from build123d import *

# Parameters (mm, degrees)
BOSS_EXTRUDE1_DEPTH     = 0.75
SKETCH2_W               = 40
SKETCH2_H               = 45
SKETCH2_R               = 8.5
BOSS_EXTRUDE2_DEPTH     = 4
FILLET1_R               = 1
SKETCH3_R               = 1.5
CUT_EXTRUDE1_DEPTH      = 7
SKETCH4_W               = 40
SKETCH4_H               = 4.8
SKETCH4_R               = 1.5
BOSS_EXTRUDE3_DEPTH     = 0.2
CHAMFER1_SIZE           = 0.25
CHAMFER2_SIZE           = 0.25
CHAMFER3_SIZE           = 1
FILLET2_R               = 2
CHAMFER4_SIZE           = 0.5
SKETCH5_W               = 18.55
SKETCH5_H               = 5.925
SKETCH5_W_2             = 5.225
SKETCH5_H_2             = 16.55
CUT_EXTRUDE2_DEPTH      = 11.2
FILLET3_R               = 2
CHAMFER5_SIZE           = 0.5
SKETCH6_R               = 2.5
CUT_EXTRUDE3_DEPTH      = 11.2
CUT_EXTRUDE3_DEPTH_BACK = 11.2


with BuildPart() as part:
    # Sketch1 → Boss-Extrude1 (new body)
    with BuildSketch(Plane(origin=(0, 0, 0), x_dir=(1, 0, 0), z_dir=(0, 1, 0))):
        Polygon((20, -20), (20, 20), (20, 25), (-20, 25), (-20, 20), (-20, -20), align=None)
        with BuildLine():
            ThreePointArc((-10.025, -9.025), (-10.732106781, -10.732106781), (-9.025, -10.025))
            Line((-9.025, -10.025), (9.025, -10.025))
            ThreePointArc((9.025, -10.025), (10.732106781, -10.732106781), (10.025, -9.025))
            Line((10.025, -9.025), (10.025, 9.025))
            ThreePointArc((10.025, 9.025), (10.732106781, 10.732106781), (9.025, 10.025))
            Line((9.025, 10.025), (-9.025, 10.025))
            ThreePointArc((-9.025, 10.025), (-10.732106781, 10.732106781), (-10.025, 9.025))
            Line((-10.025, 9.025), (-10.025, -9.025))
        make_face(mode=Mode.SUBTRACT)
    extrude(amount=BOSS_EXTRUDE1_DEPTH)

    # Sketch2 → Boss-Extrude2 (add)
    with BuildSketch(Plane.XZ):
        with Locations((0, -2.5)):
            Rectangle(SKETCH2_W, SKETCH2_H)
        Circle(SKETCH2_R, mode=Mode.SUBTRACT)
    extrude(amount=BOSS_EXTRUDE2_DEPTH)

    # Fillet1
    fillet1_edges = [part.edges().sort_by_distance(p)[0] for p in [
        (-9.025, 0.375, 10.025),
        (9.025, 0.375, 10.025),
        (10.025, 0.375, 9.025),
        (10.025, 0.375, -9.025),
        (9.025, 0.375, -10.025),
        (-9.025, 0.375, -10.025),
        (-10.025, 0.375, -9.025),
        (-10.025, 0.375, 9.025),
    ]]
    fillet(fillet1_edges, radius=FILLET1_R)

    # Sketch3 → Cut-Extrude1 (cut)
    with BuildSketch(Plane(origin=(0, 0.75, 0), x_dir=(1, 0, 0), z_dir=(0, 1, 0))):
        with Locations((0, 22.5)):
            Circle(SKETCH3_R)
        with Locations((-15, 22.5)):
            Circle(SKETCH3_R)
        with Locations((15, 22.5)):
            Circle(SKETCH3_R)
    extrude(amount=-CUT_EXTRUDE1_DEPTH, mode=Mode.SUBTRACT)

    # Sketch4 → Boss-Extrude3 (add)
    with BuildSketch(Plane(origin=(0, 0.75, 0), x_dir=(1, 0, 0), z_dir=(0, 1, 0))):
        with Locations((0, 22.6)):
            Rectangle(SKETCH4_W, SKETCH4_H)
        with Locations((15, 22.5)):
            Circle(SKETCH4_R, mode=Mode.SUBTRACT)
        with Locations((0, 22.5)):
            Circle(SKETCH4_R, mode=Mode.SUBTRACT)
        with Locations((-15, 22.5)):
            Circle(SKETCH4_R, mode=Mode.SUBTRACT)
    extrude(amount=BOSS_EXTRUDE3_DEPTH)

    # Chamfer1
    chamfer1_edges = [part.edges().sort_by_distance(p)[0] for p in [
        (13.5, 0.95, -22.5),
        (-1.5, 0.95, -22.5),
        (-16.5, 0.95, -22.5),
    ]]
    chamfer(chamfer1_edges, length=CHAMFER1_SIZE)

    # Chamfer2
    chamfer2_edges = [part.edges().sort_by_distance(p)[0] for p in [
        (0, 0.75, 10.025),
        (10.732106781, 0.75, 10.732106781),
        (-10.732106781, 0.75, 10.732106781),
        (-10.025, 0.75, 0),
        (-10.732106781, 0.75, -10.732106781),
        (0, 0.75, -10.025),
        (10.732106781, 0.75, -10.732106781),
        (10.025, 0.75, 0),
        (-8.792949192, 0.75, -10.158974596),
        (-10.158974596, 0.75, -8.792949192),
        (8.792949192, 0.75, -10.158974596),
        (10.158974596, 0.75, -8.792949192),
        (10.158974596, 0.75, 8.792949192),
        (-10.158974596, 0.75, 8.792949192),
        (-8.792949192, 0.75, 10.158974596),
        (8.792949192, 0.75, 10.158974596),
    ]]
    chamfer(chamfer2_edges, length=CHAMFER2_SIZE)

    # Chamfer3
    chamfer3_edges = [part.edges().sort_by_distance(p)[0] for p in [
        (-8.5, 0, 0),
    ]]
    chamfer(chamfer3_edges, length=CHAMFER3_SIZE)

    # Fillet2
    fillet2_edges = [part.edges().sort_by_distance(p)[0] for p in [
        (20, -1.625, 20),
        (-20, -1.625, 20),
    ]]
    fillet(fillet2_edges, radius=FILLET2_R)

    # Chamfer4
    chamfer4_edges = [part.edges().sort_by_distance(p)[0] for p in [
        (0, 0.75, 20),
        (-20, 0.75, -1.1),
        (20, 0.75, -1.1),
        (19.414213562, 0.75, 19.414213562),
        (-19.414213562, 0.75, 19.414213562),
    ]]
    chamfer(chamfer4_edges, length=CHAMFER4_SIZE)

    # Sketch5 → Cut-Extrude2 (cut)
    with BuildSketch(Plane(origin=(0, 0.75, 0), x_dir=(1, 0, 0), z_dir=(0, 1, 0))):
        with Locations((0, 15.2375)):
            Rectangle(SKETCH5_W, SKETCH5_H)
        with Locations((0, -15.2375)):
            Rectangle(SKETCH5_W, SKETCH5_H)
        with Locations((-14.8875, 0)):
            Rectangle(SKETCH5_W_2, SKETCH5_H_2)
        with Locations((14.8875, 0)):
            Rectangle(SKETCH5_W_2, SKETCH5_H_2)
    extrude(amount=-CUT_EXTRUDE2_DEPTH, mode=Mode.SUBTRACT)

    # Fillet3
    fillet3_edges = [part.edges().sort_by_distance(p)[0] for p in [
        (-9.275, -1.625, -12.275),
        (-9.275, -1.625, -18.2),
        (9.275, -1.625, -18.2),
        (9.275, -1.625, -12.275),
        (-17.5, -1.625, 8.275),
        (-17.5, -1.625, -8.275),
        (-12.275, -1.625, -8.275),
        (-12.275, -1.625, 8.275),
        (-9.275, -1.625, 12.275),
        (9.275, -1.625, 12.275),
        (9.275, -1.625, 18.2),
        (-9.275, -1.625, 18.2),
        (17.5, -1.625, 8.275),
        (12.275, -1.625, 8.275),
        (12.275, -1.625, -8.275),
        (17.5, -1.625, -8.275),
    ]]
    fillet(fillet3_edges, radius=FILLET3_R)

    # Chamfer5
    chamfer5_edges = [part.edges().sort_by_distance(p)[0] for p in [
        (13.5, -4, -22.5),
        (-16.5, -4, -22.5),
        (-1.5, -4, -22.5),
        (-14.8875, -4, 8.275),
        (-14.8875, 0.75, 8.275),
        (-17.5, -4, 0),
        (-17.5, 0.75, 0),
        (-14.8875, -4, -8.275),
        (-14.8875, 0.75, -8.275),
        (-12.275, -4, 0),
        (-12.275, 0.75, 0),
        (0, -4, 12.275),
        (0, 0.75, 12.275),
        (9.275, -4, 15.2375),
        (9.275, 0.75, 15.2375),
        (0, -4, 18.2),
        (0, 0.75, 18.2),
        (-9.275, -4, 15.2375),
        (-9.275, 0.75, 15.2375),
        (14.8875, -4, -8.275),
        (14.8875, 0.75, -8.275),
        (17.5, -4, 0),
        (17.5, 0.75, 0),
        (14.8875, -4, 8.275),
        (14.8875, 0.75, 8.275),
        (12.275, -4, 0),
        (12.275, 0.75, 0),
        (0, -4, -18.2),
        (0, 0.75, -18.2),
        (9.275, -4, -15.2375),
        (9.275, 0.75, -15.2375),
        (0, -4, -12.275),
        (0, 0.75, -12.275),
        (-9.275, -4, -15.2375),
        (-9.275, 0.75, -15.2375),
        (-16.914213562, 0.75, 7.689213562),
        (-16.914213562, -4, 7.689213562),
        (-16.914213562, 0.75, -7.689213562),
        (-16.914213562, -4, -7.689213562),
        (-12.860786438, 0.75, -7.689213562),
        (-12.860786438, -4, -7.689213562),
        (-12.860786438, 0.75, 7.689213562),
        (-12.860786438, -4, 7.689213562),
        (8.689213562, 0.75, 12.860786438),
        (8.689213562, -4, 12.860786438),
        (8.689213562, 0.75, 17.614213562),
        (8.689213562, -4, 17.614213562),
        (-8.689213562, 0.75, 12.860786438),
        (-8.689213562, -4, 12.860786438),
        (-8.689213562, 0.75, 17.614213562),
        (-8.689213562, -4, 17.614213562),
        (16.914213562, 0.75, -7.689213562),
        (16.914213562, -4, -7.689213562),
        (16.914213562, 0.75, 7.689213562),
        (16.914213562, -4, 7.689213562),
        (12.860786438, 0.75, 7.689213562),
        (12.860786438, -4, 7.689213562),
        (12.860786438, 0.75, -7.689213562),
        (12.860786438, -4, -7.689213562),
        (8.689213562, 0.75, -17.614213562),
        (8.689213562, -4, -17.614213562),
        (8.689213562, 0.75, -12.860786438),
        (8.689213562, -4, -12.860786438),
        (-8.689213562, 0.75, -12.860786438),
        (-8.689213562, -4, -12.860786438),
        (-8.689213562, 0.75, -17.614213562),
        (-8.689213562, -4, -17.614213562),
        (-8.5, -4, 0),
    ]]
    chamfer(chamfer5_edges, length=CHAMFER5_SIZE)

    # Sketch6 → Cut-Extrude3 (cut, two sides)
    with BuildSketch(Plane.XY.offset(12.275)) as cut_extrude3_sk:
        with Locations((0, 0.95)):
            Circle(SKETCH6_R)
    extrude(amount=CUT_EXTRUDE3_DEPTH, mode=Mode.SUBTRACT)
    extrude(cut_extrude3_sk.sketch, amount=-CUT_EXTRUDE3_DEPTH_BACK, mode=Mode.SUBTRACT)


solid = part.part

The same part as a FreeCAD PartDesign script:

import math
import FreeCAD as App
import Part
import Sketcher

V = App.Vector


def edges_at(feature, points):
    """Names of the edges that pass closest to the given points."""
    edges = feature.Shape.Edges
    near = lambda p: min(range(len(edges)), key=lambda i: edges[i].distToShape(Part.Vertex(*p))[0])
    return sorted({f"Edge{near(p) + 1}" for p in points})


def add_polygon(sketch, points):
    """Adds a closed chain of lines whose ends are joined by coincident constraints."""
    first, n = sketch.GeometryCount, len(points)
    for a, b in zip(points, points[1:] + points[:1]):
        sketch.addGeometry(Part.LineSegment(App.Vector(*a, 0), App.Vector(*b, 0)), False)
    for i in range(n):
        sketch.addConstraint(Sketcher.Constraint("Coincident", first + i, 2, first + (i + 1) % n, 1))

doc = App.newDocument("Part")
params = doc.addObject("Spreadsheet::Sheet", "Params")
for row, (alias, value) in enumerate([
    ("sketch1_radius", "1 mm"),
    ("sketch1_width", "40 mm"),
    ("sketch1_height", "45 mm"),
    ("sketch1_width2", "18.05 mm"),
    ("pad1_length", "0.75 mm"),
    ("sketch2_diameter", "17 mm"),
    ("sketch2_width", "40 mm"),
    ("sketch2_height", "45 mm"),
    ("pad2_length", "4 mm"),
    ("fillet_radius", "1 mm"),
    ("sketch3_diameter", "3 mm"),
    ("pocket1_length", "7 mm"),
    ("sketch4_diameter", "3 mm"),
    ("sketch4_width", "40 mm"),
    ("sketch4_height", "4.8 mm"),
    ("pad3_length", "0.2 mm"),
    ("chamfer_size", "0.25 mm"),
    ("chamfer2_size", "0.25 mm"),
    ("chamfer3_size", "1 mm"),
    ("fillet2_radius", "2 mm"),
    ("chamfer4_size", "0.5 mm"),
    ("sketch5_width", "18.55 mm"),
    ("sketch5_height", "16.55 mm"),
    ("pocket2_length", "11.2 mm"),
    ("fillet3_radius", "2 mm"),
    ("chamfer5_size", "0.5 mm"),
    ("sketch6_diameter", "5 mm"),
    ("pocket3_length", "11.2 mm"),
    ("pocket3_length2", "11.2 mm"),
], start=1):
    params.set(f"A{row}", alias)
    params.set(f"B{row}", "=" + value)
    params.setAlias(f"B{row}", alias)

body = doc.addObject("PartDesign::Body", "Body")

# Sketch on XZ plane
sketch1 = body.newObject("Sketcher::SketchObject", "Sketch")
sketch1.AttachmentSupport = (doc.getObject("XZ_Plane"), [""])
sketch1.MapMode = "FlatFace"
add_polygon(sketch1, [(20, 20), (20, -25), (-20, -25), (-20, 20)])  # lines 0-3
sketch1.addGeometry(Part.ArcOfCircle(Part.Circle(V(-10, 10, 0), V(0, 0, 1), 1), math.radians(0), math.radians(270)), False)  # 4
sketch1.addGeometry(Part.LineSegment(V(-10, 9, 0), V(-10, -9, 0)), False)  # 5
sketch1.addGeometry(Part.ArcOfCircle(Part.Circle(V(-10, -10, 0), V(0, 0, 1), 1), math.radians(90), math.radians(360)), False)  # 6
sketch1.addGeometry(Part.LineSegment(V(-9, -10, 0), V(9, -10, 0)), False)  # 7
sketch1.addGeometry(Part.ArcOfCircle(Part.Circle(V(10, -10, 0), V(0, 0, 1), 1), math.radians(180), math.radians(450)), False)  # 8
sketch1.addGeometry(Part.LineSegment(V(10, -9, 0), V(10, 9, 0)), False)  # 9
sketch1.addGeometry(Part.ArcOfCircle(Part.Circle(V(10, 10, 0), V(0, 0, 1), 1), math.radians(-90), math.radians(180)), False)  # 10
sketch1.addGeometry(Part.LineSegment(V(9, 10, 0), V(-9, 10, 0)), False)  # 11
sketch1.addConstraint([
    Sketcher.Constraint("Coincident", 4, 2, 5, 1),
    Sketcher.Constraint("Coincident", 5, 2, 6, 1),
    Sketcher.Constraint("Coincident", 6, 2, 7, 1),
    Sketcher.Constraint("Coincident", 7, 2, 8, 1),
    Sketcher.Constraint("Coincident", 8, 2, 9, 1),
    Sketcher.Constraint("Coincident", 9, 2, 10, 1),
    Sketcher.Constraint("Coincident", 10, 2, 11, 1),
    Sketcher.Constraint("Coincident", 11, 2, 4, 1),
    Sketcher.Constraint("Vertical", 0),
    Sketcher.Constraint("Horizontal", 1),
    Sketcher.Constraint("Vertical", 2),
    Sketcher.Constraint("Horizontal", 3),
    Sketcher.Constraint("Vertical", 5),
    Sketcher.Constraint("Horizontal", 7),
    Sketcher.Constraint("Vertical", 9),
    Sketcher.Constraint("Horizontal", 11),
    Sketcher.Constraint("Equal", 4, 6),
    Sketcher.Constraint("Equal", 6, 8),
    Sketcher.Constraint("Equal", 8, 10),
    Sketcher.Constraint("Symmetric", 4, 3, 8, 3, -1, 1),
    Sketcher.Constraint("Symmetric", 6, 3, 10, 3, -1, 1),
    Sketcher.Constraint("Symmetric", 6, 3, 8, 3, -2),
    Sketcher.Constraint("Horizontal", 8, 3, 6, 2),
    Sketcher.Constraint("Horizontal", 4, 3, 10, 2),
    Sketcher.Constraint("Vertical", 6, 3, 4, 2),
    Sketcher.Constraint("Vertical", 10, 3, 8, 2),
    Sketcher.Constraint("Equal", 11, 5),
    Sketcher.Constraint("Radius", 4, 1.0),
    Sketcher.Constraint("DistanceX", 1, 2, 1, 1, 40.0),
    Sketcher.Constraint("DistanceY", 0, 2, 0, 1, 45.0),
    Sketcher.Constraint("DistanceX", -1, 1, 0, 2, 20.0),
    Sketcher.Constraint("DistanceY", 0, 2, -1, 1, 25.0),
    Sketcher.Constraint("DistanceX", 7, 1, 7, 2, 18.05),
])
sketch1.setExpression("Constraints[31]", "Params.sketch1_radius")
sketch1.setExpression("Constraints[32]", "Params.sketch1_width")
sketch1.setExpression("Constraints[33]", "Params.sketch1_height")
sketch1.setExpression("Constraints[36]", "Params.sketch1_width2")
pad1 = body.newObject("PartDesign::Pad", "Pad")
pad1.Profile = sketch1
pad1.setExpression("Length", "Params.pad1_length")
pad1.Reversed = True

# Sketch on XZ plane
sketch2 = body.newObject("Sketcher::SketchObject", "Sketch001")
sketch2.AttachmentSupport = (doc.getObject("XZ_Plane"), [""])
sketch2.MapMode = "FlatFace"
add_polygon(sketch2, [(-20, 20), (-20, -25), (20, -25), (20, 20)])  # lines 0-3
sketch2.addGeometry(Part.Circle(V(0, 0, 0), V(0, 0, 1), 8), False)  # 4
sketch2.addConstraint([
    Sketcher.Constraint("Vertical", 0),
    Sketcher.Constraint("Horizontal", 1),
    Sketcher.Constraint("Vertical", 2),
    Sketcher.Constraint("Horizontal", 3),
    Sketcher.Constraint("Coincident", 4, 3, -1, 1),
    Sketcher.Constraint("Diameter", 4, 17.0),
    Sketcher.Constraint("DistanceX", 1, 1, 1, 2, 40.0),
    Sketcher.Constraint("DistanceY", 0, 2, 0, 1, 45.0),
    Sketcher.Constraint("DistanceX", 0, 2, -1, 1, 20.0),
    Sketcher.Constraint("DistanceY", 0, 2, -1, 1, 25.0),
])
sketch2.setExpression("Constraints[9]", "Params.sketch2_diameter")
sketch2.setExpression("Constraints[10]", "Params.sketch2_width")
sketch2.setExpression("Constraints[11]", "Params.sketch2_height")
pad2 = body.newObject("PartDesign::Pad", "Pad001")
pad2.Profile = sketch2
pad2.setExpression("Length", "Params.pad2_length")
doc.recompute()

fillet = body.newObject("PartDesign::Fillet", "Fillet")
fillet.Base = (pad2, edges_at(pad2, [
    (-9.025, 0.375, 10.025),
    (9.025, 0.375, 10.025),
    (10.025, 0.375, 9.025),
    (10.025, 0.375, -9.025),
    (9.025, 0.375, -10.025),
    (-9.025, 0.375, -10.025),
    (-10.025, 0.375, -9.025),
    (-10.025, 0.375, 9.025),
]))
fillet.setExpression("Radius", "Params.fillet_radius")

# Sketch on XZ plane
sketch3 = body.newObject("Sketcher::SketchObject", "Sketch002")
sketch3.AttachmentSupport = (doc.getObject("XZ_Plane"), [""])
sketch3.MapMode = "FlatFace"
sketch3.AttachmentOffset = App.Placement(V(0, 0, -0.75), App.Rotation())
sketch3.addGeometry([
    Part.Circle(V(0, -22.5, 0), V(0, 0, 1), 1.5),
    Part.Circle(V(-15, -22.5, 0), V(0, 0, 1), 1.5),
    Part.Circle(V(15, -22.5, 0), V(0, 0, 1), 1.5),
], False)
sketch3.addConstraint([
    Sketcher.Constraint("Equal", 0, 1),
    Sketcher.Constraint("Equal", 1, 2),
    Sketcher.Constraint("Symmetric", 1, 3, 2, 3, -2),
    Sketcher.Constraint("PointOnObject", 0, 3, -2),
    Sketcher.Constraint("Horizontal", 0, 3, 1, 3),
    Sketcher.Constraint("Diameter", 0, 3.0),
    Sketcher.Constraint("DistanceX", 1, 3, -1, 1, 15.0),
    Sketcher.Constraint("DistanceY", 0, 3, -1, 1, 22.5),
])
sketch3.setExpression("Constraints[5]", "Params.sketch3_diameter")
pocket1 = body.newObject("PartDesign::Pocket", "Pocket")
pocket1.Profile = sketch3
pocket1.setExpression("Length", "Params.pocket1_length")
pocket1.Reversed = True

# Sketch on XZ plane
sketch4 = body.newObject("Sketcher::SketchObject", "Sketch003")
sketch4.AttachmentSupport = (doc.getObject("XZ_Plane"), [""])
sketch4.MapMode = "FlatFace"
sketch4.AttachmentOffset = App.Placement(V(0, 0, -0.75), App.Rotation())
add_polygon(sketch4, [(-20, -25), (-20, -20.2), (20, -20.2), (20, -25)])  # lines 0-3
sketch4.addGeometry(Part.Circle(V(-15, -22.5, 0), V(0, 0, 1), 1.5), False)  # 4
sketch4.addGeometry(Part.Circle(V(0, -22.5, 0), V(0, 0, 1), 1.5), False)  # 5
sketch4.addGeometry(Part.Circle(V(15, -22.5, 0), V(0, 0, 1), 1.5), False)  # 6
sketch4.addConstraint([
    Sketcher.Constraint("Vertical", 0),
    Sketcher.Constraint("Horizontal", 1),
    Sketcher.Constraint("Vertical", 2),
    Sketcher.Constraint("Horizontal", 3),
    Sketcher.Constraint("Equal", 4, 5),
    Sketcher.Constraint("Equal", 5, 6),
    Sketcher.Constraint("Symmetric", 4, 3, 6, 3, -2),
    Sketcher.Constraint("PointOnObject", 5, 3, -2),
    Sketcher.Constraint("Horizontal", 4, 3, 5, 3),
    Sketcher.Constraint("Diameter", 4, 3.0),
    Sketcher.Constraint("DistanceX", 1, 1, 1, 2, 40.0),
    Sketcher.Constraint("DistanceY", 0, 1, 0, 2, 4.8),
    Sketcher.Constraint("DistanceX", 4, 3, -1, 1, 15.0),
    Sketcher.Constraint("DistanceX", 0, 2, -1, 1, 20.0),
    Sketcher.Constraint("DistanceY", 2, 2, -1, 1, 25.0),
    Sketcher.Constraint("DistanceY", 4, 3, -1, 1, 22.5),
])
sketch4.setExpression("Constraints[13]", "Params.sketch4_diameter")
sketch4.setExpression("Constraints[14]", "Params.sketch4_width")
sketch4.setExpression("Constraints[15]", "Params.sketch4_height")
pad3 = body.newObject("PartDesign::Pad", "Pad002")
pad3.Profile = sketch4
pad3.setExpression("Length", "Params.pad3_length")
pad3.Reversed = True
doc.recompute()

chamfer = body.newObject("PartDesign::Chamfer", "Chamfer")
chamfer.Base = (pad3, edges_at(pad3, [(13.5, 0.95, -22.5), (-1.5, 0.95, -22.5), (-16.5, 0.95, -22.5)]))
chamfer.setExpression("Size", "Params.chamfer_size")
doc.recompute()

chamfer2 = body.newObject("PartDesign::Chamfer", "Chamfer001")
chamfer2.Base = (chamfer, edges_at(chamfer, [
    (0, 0.75, 10.025),
    (10.732, 0.75, 10.732),
    (-10.732, 0.75, 10.732),
    (-10.025, 0.75, 0),
    (-10.732, 0.75, -10.732),
    (0, 0.75, -10.025),
    (10.732, 0.75, -10.732),
    (10.025, 0.75, 0),
    (-8.793, 0.75, -10.159),
    (-10.159, 0.75, -8.793),
    (8.793, 0.75, -10.159),
    (10.159, 0.75, -8.793),
    (10.159, 0.75, 8.793),
    (-10.159, 0.75, 8.793),
    (-8.793, 0.75, 10.159),
    (8.793, 0.75, 10.159),
]))
chamfer2.setExpression("Size", "Params.chamfer2_size")
doc.recompute()

chamfer3 = body.newObject("PartDesign::Chamfer", "Chamfer002")
chamfer3.Base = (chamfer2, edges_at(chamfer2, [(-8.5, 0, 0)]))
chamfer3.setExpression("Size", "Params.chamfer3_size")
doc.recompute()

fillet2 = body.newObject("PartDesign::Fillet", "Fillet001")
fillet2.Base = (chamfer3, edges_at(chamfer3, [(20, -1.625, 20), (-20, -1.625, 20)]))
fillet2.setExpression("Radius", "Params.fillet2_radius")
doc.recompute()

chamfer4 = body.newObject("PartDesign::Chamfer", "Chamfer003")
chamfer4.Base = (fillet2, edges_at(fillet2, [
    (0, 0.75, 20),
    (-20, 0.75, -1.1),
    (20, 0.75, -1.1),
    (19.414, 0.75, 19.414),
    (-19.414, 0.75, 19.414),
]))
chamfer4.setExpression("Size", "Params.chamfer4_size")

# Sketch on XZ plane
sketch5 = body.newObject("Sketcher::SketchObject", "Sketch004")
sketch5.AttachmentSupport = (doc.getObject("XZ_Plane"), [""])
sketch5.MapMode = "FlatFace"
sketch5.AttachmentOffset = App.Placement(V(0, 0, -0.75), App.Rotation())
add_polygon(sketch5, [(-9, -18), (-9, -12), (9, -12), (9, -18)])  # lines 0-3
add_polygon(sketch5, [(-9, 12), (-9, 18), (9, 18), (9, 12)])  # lines 4-7
add_polygon(sketch5, [(-18, -8), (-18, 8), (-12, 8), (-12, -8)])  # lines 8-11
add_polygon(sketch5, [(12, -8), (12, 8), (18, 8), (18, -8)])  # lines 12-15
sketch5.addConstraint([
    Sketcher.Constraint("Vertical", 0),
    Sketcher.Constraint("Horizontal", 1),
    Sketcher.Constraint("Vertical", 2),
    Sketcher.Constraint("Horizontal", 3),
    Sketcher.Constraint("Vertical", 4),
    Sketcher.Constraint("Horizontal", 5),
    Sketcher.Constraint("Vertical", 6),
    Sketcher.Constraint("Horizontal", 7),
    Sketcher.Constraint("Vertical", 8),
    Sketcher.Constraint("Horizontal", 9),
    Sketcher.Constraint("Vertical", 10),
    Sketcher.Constraint("Horizontal", 11),
    Sketcher.Constraint("Vertical", 12),
    Sketcher.Constraint("Horizontal", 13),
    Sketcher.Constraint("Vertical", 14),
    Sketcher.Constraint("Horizontal", 15),
    Sketcher.Constraint("Symmetric", 2, 2, 4, 2, -1, 1),
    Sketcher.Constraint("Symmetric", 0, 2, 6, 2, -1, 1),
    Sketcher.Constraint("Symmetric", 10, 2, 12, 2, -1, 1),
    Sketcher.Constraint("Symmetric", 8, 2, 14, 2, -1, 1),
    Sketcher.Constraint("Horizontal", 9, 2, 12, 2),
    Sketcher.Constraint("Vertical", 3, 2, 4, 2),
    Sketcher.Constraint("DistanceY", 8, 2, 7, 2, 4.0),
    Sketcher.Constraint("DistanceX", 9, 2, 7, 2, 3.0),
    Sketcher.Constraint("DistanceX", 1, 1, 1, 2, 18.55),
    Sketcher.Constraint("DistanceY", 8, 1, 8, 2, 16.55),
    Sketcher.Constraint("DistanceY", 2, 2, -1, 1, 18.2),
    Sketcher.Constraint("DistanceX", 8, 2, -1, 1, 17.5),
])
sketch5.setExpression("Constraints[40]", "Params.sketch5_width")
sketch5.setExpression("Constraints[41]", "Params.sketch5_height")
pocket2 = body.newObject("PartDesign::Pocket", "Pocket001")
pocket2.Profile = sketch5
pocket2.setExpression("Length", "Params.pocket2_length")
pocket2.Reversed = True
doc.recompute()

fillet3 = body.newObject("PartDesign::Fillet", "Fillet002")
fillet3.Base = (pocket2, edges_at(pocket2, [
    (-9.275, -1.625, -12.275),
    (-9.275, -1.625, -18.2),
    (9.275, -1.625, -18.2),
    (9.275, -1.625, -12.275),
    (-17.5, -1.625, 8.275),
    (-17.5, -1.625, -8.275),
    (-12.275, -1.625, -8.275),
    (-12.275, -1.625, 8.275),
    (-9.275, -1.625, 12.275),
    (9.275, -1.625, 12.275),
    (9.275, -1.625, 18.2),
    (-9.275, -1.625, 18.2),
    (17.5, -1.625, 8.275),
    (12.275, -1.625, 8.275),
    (12.275, -1.625, -8.275),
    (17.5, -1.625, -8.275),
]))
fillet3.setExpression("Radius", "Params.fillet3_radius")
doc.recompute()

chamfer5 = body.newObject("PartDesign::Chamfer", "Chamfer004")
chamfer5.Base = (fillet3, edges_at(fillet3, [
    (13.5, -4, -22.5),
    (-16.5, -4, -22.5),
    (-1.5, -4, -22.5),
    (-14.887, -4, 8.275),
    (-14.887, 0.75, 8.275),
    (-17.5, -4, 0),
    (-17.5, 0.75, 0),
    (-14.887, -4, -8.275),
    (-14.887, 0.75, -8.275),
    (-12.275, -4, 0),
    (-12.275, 0.75, 0),
    (0, -4, 12.275),
    (0, 0.75, 12.275),
    (9.275, -4, 15.238),
    (9.275, 0.75, 15.238),
    (0, -4, 18.2),
    (0, 0.75, 18.2),
    (-9.275, -4, 15.238),
    (-9.275, 0.75, 15.238),
    (14.887, -4, -8.275),
    (14.887, 0.75, -8.275),
    (17.5, -4, 0),
    (17.5, 0.75, 0),
    (14.887, -4, 8.275),
    (14.887, 0.75, 8.275),
    (12.275, -4, 0),
    (12.275, 0.75, 0),
    (0, -4, -18.2),
    (0, 0.75, -18.2),
    (9.275, -4, -15.238),
    (9.275, 0.75, -15.238),
    (0, -4, -12.275),
    (0, 0.75, -12.275),
    (-9.275, -4, -15.238),
    (-9.275, 0.75, -15.238),
    (-16.914, 0.75, 7.689),
    (-16.914, -4, 7.689),
    (-16.914, 0.75, -7.689),
    (-16.914, -4, -7.689),
    (-12.861, 0.75, -7.689),
    (-12.861, -4, -7.689),
    (-12.861, 0.75, 7.689),
    (-12.861, -4, 7.689),
    (8.689, 0.75, 12.861),
    (8.689, -4, 12.861),
    (8.689, 0.75, 17.614),
    (8.689, -4, 17.614),
    (-8.689, 0.75, 12.861),
    (-8.689, -4, 12.861),
    (-8.689, 0.75, 17.614),
    (-8.689, -4, 17.614),
    (16.914, 0.75, -7.689),
    (16.914, -4, -7.689),
    (16.914, 0.75, 7.689),
    (16.914, -4, 7.689),
    (12.861, 0.75, 7.689),
    (12.861, -4, 7.689),
    (12.861, 0.75, -7.689),
    (12.861, -4, -7.689),
    (8.689, 0.75, -17.614),
    (8.689, -4, -17.614),
    (8.689, 0.75, -12.861),
    (8.689, -4, -12.861),
    (-8.689, 0.75, -12.861),
    (-8.689, -4, -12.861),
    (-8.689, 0.75, -17.614),
    (-8.689, -4, -17.614),
    (-8.5, -4, 0),
]))
chamfer5.setExpression("Size", "Params.chamfer5_size")

# Sketch on XY plane
sketch6 = body.newObject("Sketcher::SketchObject", "Sketch005")
sketch6.AttachmentSupport = (doc.getObject("XY_Plane"), [""])
sketch6.MapMode = "FlatFace"
sketch6.AttachmentOffset = App.Placement(V(0, 0, 12.275), App.Rotation())
sketch6.addGeometry(Part.Circle(V(0, 0.9, 0), V(0, 0, 1), 2.5), False)
sketch6.addConstraint([
    Sketcher.Constraint("PointOnObject", 0, 3, -2),
    Sketcher.Constraint("Diameter", 0, 5.0),
    Sketcher.Constraint("DistanceY", -1, 1, 0, 3, 0.95),
])
sketch6.setExpression("Constraints[1]", "Params.sketch6_diameter")
pocket3 = body.newObject("PartDesign::Pocket", "Pocket002")
pocket3.Profile = sketch6
pocket3.Type = "TwoLengths"
pocket3.setExpression("Length", "Params.pocket3_length")
pocket3.setExpression("Length2", "Params.pocket3_length2")
pocket3.Reversed = True

doc.recompute()
